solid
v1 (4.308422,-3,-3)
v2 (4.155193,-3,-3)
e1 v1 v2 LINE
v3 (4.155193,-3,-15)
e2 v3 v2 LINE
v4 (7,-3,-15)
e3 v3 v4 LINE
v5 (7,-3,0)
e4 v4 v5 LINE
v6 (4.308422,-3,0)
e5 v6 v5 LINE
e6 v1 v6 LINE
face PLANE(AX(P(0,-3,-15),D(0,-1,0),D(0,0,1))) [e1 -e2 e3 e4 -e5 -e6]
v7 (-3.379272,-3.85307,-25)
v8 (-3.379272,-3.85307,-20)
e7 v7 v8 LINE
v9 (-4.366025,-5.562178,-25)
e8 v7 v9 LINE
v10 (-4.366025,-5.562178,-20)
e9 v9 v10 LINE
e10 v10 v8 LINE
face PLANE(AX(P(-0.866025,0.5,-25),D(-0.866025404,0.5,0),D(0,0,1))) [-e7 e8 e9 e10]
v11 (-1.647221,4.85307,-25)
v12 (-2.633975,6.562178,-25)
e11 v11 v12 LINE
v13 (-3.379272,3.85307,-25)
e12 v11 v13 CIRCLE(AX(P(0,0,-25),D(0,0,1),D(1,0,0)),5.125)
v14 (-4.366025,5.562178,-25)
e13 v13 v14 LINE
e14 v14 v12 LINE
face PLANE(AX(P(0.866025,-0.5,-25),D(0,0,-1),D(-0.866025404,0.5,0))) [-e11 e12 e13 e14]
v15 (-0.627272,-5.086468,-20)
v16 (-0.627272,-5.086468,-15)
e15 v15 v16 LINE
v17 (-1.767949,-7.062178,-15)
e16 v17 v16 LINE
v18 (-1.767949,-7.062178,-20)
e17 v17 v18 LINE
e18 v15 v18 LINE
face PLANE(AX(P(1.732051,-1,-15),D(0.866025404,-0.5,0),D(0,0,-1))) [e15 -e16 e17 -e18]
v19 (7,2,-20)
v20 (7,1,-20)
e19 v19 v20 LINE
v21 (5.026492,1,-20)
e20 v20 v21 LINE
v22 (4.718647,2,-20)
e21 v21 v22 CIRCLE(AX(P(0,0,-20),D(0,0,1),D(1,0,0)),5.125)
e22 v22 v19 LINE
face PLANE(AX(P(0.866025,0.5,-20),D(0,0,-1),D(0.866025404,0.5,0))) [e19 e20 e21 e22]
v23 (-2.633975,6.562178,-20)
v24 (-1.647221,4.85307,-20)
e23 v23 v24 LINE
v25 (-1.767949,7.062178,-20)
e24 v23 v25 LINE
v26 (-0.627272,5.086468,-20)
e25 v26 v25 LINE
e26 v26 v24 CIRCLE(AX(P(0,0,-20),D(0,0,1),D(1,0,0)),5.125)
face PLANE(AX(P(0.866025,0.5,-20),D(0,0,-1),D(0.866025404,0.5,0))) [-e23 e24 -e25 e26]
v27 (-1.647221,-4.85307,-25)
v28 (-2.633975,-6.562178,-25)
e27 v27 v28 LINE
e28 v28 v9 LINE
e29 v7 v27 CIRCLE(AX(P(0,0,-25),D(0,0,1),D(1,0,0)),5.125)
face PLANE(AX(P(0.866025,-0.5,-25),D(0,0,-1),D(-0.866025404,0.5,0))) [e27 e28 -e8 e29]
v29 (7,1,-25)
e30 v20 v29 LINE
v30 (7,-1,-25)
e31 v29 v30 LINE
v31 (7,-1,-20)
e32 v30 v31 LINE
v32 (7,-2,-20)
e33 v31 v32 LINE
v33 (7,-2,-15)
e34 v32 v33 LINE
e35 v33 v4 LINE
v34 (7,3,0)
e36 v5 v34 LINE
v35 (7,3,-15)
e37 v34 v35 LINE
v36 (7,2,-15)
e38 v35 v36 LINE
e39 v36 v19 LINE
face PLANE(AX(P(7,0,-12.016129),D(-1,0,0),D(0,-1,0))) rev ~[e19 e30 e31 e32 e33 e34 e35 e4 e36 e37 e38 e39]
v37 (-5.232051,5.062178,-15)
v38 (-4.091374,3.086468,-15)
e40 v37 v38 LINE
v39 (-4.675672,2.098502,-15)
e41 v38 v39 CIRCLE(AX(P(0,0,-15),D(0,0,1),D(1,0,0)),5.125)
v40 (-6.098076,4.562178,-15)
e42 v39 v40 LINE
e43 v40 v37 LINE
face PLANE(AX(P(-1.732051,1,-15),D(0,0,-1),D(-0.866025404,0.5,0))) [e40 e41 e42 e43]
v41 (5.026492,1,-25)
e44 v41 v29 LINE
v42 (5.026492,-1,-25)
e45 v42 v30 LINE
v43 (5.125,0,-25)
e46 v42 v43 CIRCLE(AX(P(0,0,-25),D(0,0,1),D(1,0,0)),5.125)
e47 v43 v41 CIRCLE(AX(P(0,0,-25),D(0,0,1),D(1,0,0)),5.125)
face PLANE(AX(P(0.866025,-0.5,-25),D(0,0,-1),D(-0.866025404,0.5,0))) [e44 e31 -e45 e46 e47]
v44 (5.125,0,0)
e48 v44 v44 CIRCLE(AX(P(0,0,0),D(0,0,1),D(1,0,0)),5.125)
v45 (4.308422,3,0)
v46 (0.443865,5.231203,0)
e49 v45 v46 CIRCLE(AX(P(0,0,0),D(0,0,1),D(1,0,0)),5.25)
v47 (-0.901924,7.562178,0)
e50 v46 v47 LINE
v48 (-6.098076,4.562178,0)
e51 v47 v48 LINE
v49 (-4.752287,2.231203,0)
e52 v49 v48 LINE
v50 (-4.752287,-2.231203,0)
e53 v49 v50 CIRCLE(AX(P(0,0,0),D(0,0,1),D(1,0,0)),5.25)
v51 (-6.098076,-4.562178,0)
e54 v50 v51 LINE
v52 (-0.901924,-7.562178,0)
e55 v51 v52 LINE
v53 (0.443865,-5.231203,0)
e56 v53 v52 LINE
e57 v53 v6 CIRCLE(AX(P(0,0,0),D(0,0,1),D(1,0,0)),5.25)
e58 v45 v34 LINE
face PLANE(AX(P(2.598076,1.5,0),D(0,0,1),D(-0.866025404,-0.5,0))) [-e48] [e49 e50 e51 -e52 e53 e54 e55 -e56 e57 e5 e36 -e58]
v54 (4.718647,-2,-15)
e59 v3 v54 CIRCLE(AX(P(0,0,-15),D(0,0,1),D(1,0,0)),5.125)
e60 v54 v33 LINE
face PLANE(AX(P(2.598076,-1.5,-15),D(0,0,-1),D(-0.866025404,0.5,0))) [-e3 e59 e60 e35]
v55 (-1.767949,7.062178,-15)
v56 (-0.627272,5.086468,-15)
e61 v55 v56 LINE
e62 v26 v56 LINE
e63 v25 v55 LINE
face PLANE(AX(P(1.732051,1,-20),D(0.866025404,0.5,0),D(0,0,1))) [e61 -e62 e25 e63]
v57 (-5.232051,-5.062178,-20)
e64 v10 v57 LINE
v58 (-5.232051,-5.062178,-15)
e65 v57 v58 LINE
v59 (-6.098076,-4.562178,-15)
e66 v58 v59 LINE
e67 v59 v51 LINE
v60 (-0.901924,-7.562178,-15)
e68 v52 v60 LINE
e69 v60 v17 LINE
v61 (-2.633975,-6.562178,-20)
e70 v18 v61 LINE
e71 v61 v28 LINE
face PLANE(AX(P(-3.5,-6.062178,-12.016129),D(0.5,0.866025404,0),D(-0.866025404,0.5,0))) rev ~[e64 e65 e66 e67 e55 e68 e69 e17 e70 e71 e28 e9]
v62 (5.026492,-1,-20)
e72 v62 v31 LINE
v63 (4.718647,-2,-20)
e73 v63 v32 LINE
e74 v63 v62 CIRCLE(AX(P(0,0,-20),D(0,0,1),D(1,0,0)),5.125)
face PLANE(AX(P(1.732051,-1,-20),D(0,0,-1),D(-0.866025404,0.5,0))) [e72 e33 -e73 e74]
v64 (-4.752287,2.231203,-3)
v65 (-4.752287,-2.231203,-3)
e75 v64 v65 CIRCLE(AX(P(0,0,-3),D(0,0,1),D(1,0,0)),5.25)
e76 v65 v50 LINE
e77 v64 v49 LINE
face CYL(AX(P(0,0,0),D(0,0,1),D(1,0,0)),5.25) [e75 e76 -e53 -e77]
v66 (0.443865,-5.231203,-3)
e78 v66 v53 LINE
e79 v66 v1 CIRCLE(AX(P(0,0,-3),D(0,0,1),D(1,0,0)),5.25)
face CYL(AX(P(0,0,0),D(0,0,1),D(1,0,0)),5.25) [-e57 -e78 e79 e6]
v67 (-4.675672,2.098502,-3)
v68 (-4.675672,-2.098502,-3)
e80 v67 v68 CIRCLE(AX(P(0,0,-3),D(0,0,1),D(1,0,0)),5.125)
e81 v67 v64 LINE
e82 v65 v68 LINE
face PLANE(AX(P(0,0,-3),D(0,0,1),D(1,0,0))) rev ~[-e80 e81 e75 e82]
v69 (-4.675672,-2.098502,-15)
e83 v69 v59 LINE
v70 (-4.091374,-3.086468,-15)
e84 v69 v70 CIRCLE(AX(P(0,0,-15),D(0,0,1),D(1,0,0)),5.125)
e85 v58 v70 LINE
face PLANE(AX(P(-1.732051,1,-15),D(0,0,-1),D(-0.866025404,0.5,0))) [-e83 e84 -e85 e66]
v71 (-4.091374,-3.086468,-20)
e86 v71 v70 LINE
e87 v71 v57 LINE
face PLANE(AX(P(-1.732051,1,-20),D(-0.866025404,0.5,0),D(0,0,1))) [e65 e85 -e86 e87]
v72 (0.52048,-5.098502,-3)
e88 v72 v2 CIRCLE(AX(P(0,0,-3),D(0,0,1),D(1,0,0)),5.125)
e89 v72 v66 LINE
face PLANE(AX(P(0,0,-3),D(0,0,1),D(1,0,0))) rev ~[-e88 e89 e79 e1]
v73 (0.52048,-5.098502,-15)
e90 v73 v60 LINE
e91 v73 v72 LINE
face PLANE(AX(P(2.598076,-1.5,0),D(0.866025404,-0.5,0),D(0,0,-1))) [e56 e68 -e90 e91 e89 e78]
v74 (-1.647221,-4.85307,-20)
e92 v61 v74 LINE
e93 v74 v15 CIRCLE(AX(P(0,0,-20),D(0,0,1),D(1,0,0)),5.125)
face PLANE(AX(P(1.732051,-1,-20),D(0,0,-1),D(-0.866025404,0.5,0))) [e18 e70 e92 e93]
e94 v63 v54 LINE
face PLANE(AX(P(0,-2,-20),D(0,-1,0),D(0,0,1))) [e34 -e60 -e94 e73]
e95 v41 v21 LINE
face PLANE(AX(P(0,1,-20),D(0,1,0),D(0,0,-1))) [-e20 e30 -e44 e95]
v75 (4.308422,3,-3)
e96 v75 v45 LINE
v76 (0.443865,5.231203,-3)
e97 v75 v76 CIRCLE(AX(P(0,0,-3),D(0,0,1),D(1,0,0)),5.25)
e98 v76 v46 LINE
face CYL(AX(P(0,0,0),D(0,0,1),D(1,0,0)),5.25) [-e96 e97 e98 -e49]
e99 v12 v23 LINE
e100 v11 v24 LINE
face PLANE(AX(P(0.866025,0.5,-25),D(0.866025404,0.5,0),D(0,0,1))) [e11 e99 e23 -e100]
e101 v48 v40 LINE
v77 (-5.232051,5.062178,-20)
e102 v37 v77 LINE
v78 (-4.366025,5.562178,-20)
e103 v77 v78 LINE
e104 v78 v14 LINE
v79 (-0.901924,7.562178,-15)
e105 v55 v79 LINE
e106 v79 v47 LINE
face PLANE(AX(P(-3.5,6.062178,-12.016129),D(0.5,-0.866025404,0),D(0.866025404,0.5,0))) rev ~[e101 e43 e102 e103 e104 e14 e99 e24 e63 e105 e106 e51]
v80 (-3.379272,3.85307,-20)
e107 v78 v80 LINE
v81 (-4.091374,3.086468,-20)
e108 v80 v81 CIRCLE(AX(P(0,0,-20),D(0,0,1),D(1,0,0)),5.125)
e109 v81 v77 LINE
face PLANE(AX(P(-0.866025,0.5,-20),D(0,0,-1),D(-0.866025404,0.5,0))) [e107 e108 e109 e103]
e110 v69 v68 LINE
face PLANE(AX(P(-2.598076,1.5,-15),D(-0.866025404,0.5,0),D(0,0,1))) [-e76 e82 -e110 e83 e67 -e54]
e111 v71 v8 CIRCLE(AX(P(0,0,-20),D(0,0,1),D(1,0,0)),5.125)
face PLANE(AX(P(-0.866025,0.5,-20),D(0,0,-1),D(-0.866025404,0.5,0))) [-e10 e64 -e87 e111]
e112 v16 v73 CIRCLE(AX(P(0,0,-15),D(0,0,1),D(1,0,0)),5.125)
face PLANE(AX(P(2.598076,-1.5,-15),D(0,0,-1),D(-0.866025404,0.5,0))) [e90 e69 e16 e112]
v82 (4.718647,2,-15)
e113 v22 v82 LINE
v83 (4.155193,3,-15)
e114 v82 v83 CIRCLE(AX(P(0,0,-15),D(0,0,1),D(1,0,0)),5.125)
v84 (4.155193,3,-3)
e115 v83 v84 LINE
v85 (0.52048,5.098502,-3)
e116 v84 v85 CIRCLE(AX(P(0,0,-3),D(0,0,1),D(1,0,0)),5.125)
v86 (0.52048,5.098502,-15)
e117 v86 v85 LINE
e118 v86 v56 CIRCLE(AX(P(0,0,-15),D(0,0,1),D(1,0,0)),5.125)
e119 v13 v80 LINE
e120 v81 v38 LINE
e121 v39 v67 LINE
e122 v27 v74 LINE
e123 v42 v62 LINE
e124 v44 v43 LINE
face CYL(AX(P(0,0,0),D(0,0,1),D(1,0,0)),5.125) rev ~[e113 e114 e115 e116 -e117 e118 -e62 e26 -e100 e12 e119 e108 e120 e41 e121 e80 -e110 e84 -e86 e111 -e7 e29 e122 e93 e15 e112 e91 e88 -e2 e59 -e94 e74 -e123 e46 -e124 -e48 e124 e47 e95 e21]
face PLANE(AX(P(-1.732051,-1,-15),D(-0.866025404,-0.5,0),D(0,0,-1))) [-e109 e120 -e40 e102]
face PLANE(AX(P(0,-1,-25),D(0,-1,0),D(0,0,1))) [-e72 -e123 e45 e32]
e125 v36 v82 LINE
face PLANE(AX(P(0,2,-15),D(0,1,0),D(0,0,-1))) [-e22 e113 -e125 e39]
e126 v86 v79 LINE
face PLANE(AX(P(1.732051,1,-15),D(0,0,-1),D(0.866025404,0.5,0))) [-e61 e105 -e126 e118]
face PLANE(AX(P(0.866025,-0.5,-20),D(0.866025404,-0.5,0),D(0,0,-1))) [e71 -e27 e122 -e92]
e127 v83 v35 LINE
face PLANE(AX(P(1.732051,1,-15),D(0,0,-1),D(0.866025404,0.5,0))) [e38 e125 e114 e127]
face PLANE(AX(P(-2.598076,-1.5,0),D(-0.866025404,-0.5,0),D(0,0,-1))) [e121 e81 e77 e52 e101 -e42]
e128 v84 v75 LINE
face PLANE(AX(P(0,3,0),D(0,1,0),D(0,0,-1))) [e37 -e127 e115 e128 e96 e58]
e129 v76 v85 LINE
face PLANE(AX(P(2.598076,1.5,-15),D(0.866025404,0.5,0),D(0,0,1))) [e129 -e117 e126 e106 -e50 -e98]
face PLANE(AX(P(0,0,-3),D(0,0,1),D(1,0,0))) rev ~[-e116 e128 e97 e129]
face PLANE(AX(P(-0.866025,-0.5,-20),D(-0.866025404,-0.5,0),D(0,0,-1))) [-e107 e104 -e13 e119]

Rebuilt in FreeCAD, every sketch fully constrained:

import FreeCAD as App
import Part
import Sketcher
from FreeCAD import Vector


def add_polygon(sketch, points):
    """Adds a closed chain of lines whose ends are joined by coincident constraints."""
    first, n = sketch.GeometryCount, len(points)
    for a, b in zip(points, points[1:] + points[:1]):
        sketch.addGeometry(Part.LineSegment(App.Vector(*a, 0), App.Vector(*b, 0)), False)
    for i in range(n):
        sketch.addConstraint(Sketcher.Constraint("Coincident", first + i, 2, first + (i + 1) % n, 1))

doc = App.newDocument("Part")
body = doc.addObject("PartDesign::Body", "Body")

# Sketch on an angled plane
sketch1 = doc.addObject("Sketcher::SketchObject", "Sketch")
body.addObject(sketch1)
sketch1.Placement = App.Placement(Vector(0, 0, 0), App.Rotation(Vector(-0.866025404, -0.5, 0), Vector(0, 0, 1), Vector(-0.5, 0.866025404, 0), "ZXY"))
add_polygon(sketch1, [(3, 0), (-3, 0), (-3, -15), (-2, -15), (-2, -20), (-1, -20), (-1, -25), (1, -25), (1, -20), (2, -20), (2, -15), (3, -15)])  # lines 0-11
sketch1.addConstraint([
    Sketcher.Constraint("Horizontal", 0),
    Sketcher.Constraint("Vertical", 1),
    Sketcher.Constraint("Horizontal", 2),
    Sketcher.Constraint("Vertical", 3),
    Sketcher.Constraint("Horizontal", 4),
    Sketcher.Constraint("Vertical", 5),
    Sketcher.Constraint("Horizontal", 6),
    Sketcher.Constraint("Vertical", 7),
    Sketcher.Constraint("Horizontal", 8),
    Sketcher.Constraint("Vertical", 9),
    Sketcher.Constraint("Horizontal", 10),
    Sketcher.Constraint("Vertical", 11),
    Sketcher.Constraint("Symmetric", 0, 2, 11, 2, -1, 1),
    Sketcher.Constraint("Symmetric", 4, 2, 7, 2, -2),
    Sketcher.Constraint("Symmetric", 2, 2, 9, 2, -2),
    Sketcher.Constraint("Equal", 2, 4),
    Sketcher.Constraint("Equal", 3, 5),
    Sketcher.Constraint("DistanceX", 0, 2, 0, 1, 6.0),
    Sketcher.Constraint("DistanceX", 2, 1, 2, 2, 1.0),
    Sketcher.Constraint("DistanceY", 1, 2, 1, 1, 15.0),
    Sketcher.Constraint("DistanceY", 3, 2, 3, 1, 5.0),
])
pad1 = doc.addObject("PartDesign::Pad", "Pad")
body.addObject(pad1)
pad1.Profile = sketch1
pad1.Length = 7

# Sketch on an angled plane
sketch2 = doc.addObject("Sketcher::SketchObject", "Sketch001")
body.addObject(sketch2)
sketch2.Placement = App.Placement(Vector(0, 0, 0), App.Rotation(Vector(0.866025404, -0.5, 0), Vector(0, 0, 1), Vector(-0.5, -0.866025404, 0), "ZXY"))
add_polygon(sketch2, [(3, 0), (-3, 0), (-3, -15), (-2, -15), (-2, -20), (-1, -20), (-1, -25), (1, -25), (1, -20), (2, -20), (2, -15), (3, -15)])  # lines 0-11
sketch2.addConstraint([
    Sketcher.Constraint("Horizontal", 0),
    Sketcher.Constraint("Vertical", 1),
    Sketcher.Constraint("Horizontal", 2),
    Sketcher.Constraint("Vertical", 3),
    Sketcher.Constraint("Horizontal", 4),
    Sketcher.Constraint("Vertical", 5),
    Sketcher.Constraint("Horizontal", 6),
    Sketcher.Constraint("Vertical", 7),
    Sketcher.Constraint("Horizontal", 8),
    Sketcher.Constraint("Vertical", 9),
    Sketcher.Constraint("Horizontal", 10),
    Sketcher.Constraint("Vertical", 11),
    Sketcher.Constraint("Symmetric", 0, 2, 11, 2, -1, 1),
    Sketcher.Constraint("Symmetric", 4, 2, 7, 2, -2),
    Sketcher.Constraint("Symmetric", 2, 2, 9, 2, -2),
    Sketcher.Constraint("Equal", 2, 4),
    Sketcher.Constraint("Equal", 3, 5),
    Sketcher.Constraint("DistanceX", 0, 2, 0, 1, 6.0),
    Sketcher.Constraint("DistanceX", 2, 1, 2, 2, 1.0),
    Sketcher.Constraint("DistanceY", 1, 2, 1, 1, 15.0),
    Sketcher.Constraint("DistanceY", 3, 2, 3, 1, 5.0),
])
pad2 = doc.addObject("PartDesign::Pad", "Pad001")
body.addObject(pad2)
pad2.Profile = sketch2
pad2.Length = 7

# Sketch on YZ plane
sketch3 = doc.addObject("Sketcher::SketchObject", "Sketch002")
body.addObject(sketch3)
sketch3.AttachmentSupport = (doc.YZ_Plane, [""])
sketch3.MapMode = "FlatFace"
add_polygon(sketch3, [(3, 0), (-3, 0), (-3, -15), (-2, -15), (-2, -20), (-1, -20), (-1, -25), (1, -25), (1, -20), (2, -20), (2, -15), (3, -15)])  # lines 0-11
sketch3.addConstraint([
    Sketcher.Constraint("Horizontal", 0),
    Sketcher.Constraint("Vertical", 1),
    Sketcher.Constraint("Horizontal", 2),
    Sketcher.Constraint("Vertical", 3),
    Sketcher.Constraint("Horizontal", 4),
    Sketcher.Constraint("Vertical", 5),
    Sketcher.Constraint("Horizontal", 6),
    Sketcher.Constraint("Vertical", 7),
    Sketcher.Constraint("Horizontal", 8),
    Sketcher.Constraint("Vertical", 9),
    Sketcher.Constraint("Horizontal", 10),
    Sketcher.Constraint("Vertical", 11),
    Sketcher.Constraint("Symmetric", 0, 2, 11, 2, -1, 1),
    Sketcher.Constraint("Symmetric", 4, 2, 7, 2, -2),
    Sketcher.Constraint("Symmetric", 2, 2, 9, 2, -2),
    Sketcher.Constraint("Equal", 2, 4),
    Sketcher.Constraint("Equal", 3, 5),
    Sketcher.Constraint("DistanceX", 0, 2, 0, 1, 6.0),
    Sketcher.Constraint("DistanceX", 2, 1, 2, 2, 1.0),
    Sketcher.Constraint("DistanceY", 1, 2, 1, 1, 15.0),
    Sketcher.Constraint("DistanceY", 3, 2, 3, 1, 5.0),
])
pad3 = doc.addObject("PartDesign::Pad", "Pad002")
body.addObject(pad3)
pad3.Profile = sketch3
pad3.Length = 7

# Sketch on XY plane
sketch4 = doc.addObject("Sketcher::SketchObject", "Sketch003")
body.addObject(sketch4)
sketch4.AttachmentSupport = (doc.XY_Plane, [""])
sketch4.MapMode = "FlatFace"
sketch4.addGeometry(Part.Circle(Vector(0, 0, 0), Vector(0, 0, 1), 5), False)
sketch4.addConstraint([
    Sketcher.Constraint("Coincident", 0, 3, -1, 1),
    Sketcher.Constraint("Diameter", 0, 10.5),
])
pad4 = doc.addObject("PartDesign::Pad", "Pad003")
body.addObject(pad4)
pad4.Profile = sketch4
pad4.Length = 3
pad4.Reversed = True

# Sketch on XY plane
sketch5 = doc.addObject("Sketcher::SketchObject", "Sketch004")
body.addObject(sketch5)
sketch5.AttachmentSupport = (doc.XY_Plane, [""])
sketch5.MapMode = "FlatFace"
sketch5.addGeometry(Part.Circle(Vector(0, 0, 0), Vector(0, 0, 1), 5), False)
sketch5.addConstraint([
    Sketcher.Constraint("Coincident", 0, 3, -1, 1),
    Sketcher.Constraint("Diameter", 0, 10.25),
])
pocket1 = doc.addObject("PartDesign::Pocket", "Pocket")
body.addObject(pocket1)
pocket1.Profile = sketch5
pocket1.Type = "ThroughAll"

doc.recompute()
